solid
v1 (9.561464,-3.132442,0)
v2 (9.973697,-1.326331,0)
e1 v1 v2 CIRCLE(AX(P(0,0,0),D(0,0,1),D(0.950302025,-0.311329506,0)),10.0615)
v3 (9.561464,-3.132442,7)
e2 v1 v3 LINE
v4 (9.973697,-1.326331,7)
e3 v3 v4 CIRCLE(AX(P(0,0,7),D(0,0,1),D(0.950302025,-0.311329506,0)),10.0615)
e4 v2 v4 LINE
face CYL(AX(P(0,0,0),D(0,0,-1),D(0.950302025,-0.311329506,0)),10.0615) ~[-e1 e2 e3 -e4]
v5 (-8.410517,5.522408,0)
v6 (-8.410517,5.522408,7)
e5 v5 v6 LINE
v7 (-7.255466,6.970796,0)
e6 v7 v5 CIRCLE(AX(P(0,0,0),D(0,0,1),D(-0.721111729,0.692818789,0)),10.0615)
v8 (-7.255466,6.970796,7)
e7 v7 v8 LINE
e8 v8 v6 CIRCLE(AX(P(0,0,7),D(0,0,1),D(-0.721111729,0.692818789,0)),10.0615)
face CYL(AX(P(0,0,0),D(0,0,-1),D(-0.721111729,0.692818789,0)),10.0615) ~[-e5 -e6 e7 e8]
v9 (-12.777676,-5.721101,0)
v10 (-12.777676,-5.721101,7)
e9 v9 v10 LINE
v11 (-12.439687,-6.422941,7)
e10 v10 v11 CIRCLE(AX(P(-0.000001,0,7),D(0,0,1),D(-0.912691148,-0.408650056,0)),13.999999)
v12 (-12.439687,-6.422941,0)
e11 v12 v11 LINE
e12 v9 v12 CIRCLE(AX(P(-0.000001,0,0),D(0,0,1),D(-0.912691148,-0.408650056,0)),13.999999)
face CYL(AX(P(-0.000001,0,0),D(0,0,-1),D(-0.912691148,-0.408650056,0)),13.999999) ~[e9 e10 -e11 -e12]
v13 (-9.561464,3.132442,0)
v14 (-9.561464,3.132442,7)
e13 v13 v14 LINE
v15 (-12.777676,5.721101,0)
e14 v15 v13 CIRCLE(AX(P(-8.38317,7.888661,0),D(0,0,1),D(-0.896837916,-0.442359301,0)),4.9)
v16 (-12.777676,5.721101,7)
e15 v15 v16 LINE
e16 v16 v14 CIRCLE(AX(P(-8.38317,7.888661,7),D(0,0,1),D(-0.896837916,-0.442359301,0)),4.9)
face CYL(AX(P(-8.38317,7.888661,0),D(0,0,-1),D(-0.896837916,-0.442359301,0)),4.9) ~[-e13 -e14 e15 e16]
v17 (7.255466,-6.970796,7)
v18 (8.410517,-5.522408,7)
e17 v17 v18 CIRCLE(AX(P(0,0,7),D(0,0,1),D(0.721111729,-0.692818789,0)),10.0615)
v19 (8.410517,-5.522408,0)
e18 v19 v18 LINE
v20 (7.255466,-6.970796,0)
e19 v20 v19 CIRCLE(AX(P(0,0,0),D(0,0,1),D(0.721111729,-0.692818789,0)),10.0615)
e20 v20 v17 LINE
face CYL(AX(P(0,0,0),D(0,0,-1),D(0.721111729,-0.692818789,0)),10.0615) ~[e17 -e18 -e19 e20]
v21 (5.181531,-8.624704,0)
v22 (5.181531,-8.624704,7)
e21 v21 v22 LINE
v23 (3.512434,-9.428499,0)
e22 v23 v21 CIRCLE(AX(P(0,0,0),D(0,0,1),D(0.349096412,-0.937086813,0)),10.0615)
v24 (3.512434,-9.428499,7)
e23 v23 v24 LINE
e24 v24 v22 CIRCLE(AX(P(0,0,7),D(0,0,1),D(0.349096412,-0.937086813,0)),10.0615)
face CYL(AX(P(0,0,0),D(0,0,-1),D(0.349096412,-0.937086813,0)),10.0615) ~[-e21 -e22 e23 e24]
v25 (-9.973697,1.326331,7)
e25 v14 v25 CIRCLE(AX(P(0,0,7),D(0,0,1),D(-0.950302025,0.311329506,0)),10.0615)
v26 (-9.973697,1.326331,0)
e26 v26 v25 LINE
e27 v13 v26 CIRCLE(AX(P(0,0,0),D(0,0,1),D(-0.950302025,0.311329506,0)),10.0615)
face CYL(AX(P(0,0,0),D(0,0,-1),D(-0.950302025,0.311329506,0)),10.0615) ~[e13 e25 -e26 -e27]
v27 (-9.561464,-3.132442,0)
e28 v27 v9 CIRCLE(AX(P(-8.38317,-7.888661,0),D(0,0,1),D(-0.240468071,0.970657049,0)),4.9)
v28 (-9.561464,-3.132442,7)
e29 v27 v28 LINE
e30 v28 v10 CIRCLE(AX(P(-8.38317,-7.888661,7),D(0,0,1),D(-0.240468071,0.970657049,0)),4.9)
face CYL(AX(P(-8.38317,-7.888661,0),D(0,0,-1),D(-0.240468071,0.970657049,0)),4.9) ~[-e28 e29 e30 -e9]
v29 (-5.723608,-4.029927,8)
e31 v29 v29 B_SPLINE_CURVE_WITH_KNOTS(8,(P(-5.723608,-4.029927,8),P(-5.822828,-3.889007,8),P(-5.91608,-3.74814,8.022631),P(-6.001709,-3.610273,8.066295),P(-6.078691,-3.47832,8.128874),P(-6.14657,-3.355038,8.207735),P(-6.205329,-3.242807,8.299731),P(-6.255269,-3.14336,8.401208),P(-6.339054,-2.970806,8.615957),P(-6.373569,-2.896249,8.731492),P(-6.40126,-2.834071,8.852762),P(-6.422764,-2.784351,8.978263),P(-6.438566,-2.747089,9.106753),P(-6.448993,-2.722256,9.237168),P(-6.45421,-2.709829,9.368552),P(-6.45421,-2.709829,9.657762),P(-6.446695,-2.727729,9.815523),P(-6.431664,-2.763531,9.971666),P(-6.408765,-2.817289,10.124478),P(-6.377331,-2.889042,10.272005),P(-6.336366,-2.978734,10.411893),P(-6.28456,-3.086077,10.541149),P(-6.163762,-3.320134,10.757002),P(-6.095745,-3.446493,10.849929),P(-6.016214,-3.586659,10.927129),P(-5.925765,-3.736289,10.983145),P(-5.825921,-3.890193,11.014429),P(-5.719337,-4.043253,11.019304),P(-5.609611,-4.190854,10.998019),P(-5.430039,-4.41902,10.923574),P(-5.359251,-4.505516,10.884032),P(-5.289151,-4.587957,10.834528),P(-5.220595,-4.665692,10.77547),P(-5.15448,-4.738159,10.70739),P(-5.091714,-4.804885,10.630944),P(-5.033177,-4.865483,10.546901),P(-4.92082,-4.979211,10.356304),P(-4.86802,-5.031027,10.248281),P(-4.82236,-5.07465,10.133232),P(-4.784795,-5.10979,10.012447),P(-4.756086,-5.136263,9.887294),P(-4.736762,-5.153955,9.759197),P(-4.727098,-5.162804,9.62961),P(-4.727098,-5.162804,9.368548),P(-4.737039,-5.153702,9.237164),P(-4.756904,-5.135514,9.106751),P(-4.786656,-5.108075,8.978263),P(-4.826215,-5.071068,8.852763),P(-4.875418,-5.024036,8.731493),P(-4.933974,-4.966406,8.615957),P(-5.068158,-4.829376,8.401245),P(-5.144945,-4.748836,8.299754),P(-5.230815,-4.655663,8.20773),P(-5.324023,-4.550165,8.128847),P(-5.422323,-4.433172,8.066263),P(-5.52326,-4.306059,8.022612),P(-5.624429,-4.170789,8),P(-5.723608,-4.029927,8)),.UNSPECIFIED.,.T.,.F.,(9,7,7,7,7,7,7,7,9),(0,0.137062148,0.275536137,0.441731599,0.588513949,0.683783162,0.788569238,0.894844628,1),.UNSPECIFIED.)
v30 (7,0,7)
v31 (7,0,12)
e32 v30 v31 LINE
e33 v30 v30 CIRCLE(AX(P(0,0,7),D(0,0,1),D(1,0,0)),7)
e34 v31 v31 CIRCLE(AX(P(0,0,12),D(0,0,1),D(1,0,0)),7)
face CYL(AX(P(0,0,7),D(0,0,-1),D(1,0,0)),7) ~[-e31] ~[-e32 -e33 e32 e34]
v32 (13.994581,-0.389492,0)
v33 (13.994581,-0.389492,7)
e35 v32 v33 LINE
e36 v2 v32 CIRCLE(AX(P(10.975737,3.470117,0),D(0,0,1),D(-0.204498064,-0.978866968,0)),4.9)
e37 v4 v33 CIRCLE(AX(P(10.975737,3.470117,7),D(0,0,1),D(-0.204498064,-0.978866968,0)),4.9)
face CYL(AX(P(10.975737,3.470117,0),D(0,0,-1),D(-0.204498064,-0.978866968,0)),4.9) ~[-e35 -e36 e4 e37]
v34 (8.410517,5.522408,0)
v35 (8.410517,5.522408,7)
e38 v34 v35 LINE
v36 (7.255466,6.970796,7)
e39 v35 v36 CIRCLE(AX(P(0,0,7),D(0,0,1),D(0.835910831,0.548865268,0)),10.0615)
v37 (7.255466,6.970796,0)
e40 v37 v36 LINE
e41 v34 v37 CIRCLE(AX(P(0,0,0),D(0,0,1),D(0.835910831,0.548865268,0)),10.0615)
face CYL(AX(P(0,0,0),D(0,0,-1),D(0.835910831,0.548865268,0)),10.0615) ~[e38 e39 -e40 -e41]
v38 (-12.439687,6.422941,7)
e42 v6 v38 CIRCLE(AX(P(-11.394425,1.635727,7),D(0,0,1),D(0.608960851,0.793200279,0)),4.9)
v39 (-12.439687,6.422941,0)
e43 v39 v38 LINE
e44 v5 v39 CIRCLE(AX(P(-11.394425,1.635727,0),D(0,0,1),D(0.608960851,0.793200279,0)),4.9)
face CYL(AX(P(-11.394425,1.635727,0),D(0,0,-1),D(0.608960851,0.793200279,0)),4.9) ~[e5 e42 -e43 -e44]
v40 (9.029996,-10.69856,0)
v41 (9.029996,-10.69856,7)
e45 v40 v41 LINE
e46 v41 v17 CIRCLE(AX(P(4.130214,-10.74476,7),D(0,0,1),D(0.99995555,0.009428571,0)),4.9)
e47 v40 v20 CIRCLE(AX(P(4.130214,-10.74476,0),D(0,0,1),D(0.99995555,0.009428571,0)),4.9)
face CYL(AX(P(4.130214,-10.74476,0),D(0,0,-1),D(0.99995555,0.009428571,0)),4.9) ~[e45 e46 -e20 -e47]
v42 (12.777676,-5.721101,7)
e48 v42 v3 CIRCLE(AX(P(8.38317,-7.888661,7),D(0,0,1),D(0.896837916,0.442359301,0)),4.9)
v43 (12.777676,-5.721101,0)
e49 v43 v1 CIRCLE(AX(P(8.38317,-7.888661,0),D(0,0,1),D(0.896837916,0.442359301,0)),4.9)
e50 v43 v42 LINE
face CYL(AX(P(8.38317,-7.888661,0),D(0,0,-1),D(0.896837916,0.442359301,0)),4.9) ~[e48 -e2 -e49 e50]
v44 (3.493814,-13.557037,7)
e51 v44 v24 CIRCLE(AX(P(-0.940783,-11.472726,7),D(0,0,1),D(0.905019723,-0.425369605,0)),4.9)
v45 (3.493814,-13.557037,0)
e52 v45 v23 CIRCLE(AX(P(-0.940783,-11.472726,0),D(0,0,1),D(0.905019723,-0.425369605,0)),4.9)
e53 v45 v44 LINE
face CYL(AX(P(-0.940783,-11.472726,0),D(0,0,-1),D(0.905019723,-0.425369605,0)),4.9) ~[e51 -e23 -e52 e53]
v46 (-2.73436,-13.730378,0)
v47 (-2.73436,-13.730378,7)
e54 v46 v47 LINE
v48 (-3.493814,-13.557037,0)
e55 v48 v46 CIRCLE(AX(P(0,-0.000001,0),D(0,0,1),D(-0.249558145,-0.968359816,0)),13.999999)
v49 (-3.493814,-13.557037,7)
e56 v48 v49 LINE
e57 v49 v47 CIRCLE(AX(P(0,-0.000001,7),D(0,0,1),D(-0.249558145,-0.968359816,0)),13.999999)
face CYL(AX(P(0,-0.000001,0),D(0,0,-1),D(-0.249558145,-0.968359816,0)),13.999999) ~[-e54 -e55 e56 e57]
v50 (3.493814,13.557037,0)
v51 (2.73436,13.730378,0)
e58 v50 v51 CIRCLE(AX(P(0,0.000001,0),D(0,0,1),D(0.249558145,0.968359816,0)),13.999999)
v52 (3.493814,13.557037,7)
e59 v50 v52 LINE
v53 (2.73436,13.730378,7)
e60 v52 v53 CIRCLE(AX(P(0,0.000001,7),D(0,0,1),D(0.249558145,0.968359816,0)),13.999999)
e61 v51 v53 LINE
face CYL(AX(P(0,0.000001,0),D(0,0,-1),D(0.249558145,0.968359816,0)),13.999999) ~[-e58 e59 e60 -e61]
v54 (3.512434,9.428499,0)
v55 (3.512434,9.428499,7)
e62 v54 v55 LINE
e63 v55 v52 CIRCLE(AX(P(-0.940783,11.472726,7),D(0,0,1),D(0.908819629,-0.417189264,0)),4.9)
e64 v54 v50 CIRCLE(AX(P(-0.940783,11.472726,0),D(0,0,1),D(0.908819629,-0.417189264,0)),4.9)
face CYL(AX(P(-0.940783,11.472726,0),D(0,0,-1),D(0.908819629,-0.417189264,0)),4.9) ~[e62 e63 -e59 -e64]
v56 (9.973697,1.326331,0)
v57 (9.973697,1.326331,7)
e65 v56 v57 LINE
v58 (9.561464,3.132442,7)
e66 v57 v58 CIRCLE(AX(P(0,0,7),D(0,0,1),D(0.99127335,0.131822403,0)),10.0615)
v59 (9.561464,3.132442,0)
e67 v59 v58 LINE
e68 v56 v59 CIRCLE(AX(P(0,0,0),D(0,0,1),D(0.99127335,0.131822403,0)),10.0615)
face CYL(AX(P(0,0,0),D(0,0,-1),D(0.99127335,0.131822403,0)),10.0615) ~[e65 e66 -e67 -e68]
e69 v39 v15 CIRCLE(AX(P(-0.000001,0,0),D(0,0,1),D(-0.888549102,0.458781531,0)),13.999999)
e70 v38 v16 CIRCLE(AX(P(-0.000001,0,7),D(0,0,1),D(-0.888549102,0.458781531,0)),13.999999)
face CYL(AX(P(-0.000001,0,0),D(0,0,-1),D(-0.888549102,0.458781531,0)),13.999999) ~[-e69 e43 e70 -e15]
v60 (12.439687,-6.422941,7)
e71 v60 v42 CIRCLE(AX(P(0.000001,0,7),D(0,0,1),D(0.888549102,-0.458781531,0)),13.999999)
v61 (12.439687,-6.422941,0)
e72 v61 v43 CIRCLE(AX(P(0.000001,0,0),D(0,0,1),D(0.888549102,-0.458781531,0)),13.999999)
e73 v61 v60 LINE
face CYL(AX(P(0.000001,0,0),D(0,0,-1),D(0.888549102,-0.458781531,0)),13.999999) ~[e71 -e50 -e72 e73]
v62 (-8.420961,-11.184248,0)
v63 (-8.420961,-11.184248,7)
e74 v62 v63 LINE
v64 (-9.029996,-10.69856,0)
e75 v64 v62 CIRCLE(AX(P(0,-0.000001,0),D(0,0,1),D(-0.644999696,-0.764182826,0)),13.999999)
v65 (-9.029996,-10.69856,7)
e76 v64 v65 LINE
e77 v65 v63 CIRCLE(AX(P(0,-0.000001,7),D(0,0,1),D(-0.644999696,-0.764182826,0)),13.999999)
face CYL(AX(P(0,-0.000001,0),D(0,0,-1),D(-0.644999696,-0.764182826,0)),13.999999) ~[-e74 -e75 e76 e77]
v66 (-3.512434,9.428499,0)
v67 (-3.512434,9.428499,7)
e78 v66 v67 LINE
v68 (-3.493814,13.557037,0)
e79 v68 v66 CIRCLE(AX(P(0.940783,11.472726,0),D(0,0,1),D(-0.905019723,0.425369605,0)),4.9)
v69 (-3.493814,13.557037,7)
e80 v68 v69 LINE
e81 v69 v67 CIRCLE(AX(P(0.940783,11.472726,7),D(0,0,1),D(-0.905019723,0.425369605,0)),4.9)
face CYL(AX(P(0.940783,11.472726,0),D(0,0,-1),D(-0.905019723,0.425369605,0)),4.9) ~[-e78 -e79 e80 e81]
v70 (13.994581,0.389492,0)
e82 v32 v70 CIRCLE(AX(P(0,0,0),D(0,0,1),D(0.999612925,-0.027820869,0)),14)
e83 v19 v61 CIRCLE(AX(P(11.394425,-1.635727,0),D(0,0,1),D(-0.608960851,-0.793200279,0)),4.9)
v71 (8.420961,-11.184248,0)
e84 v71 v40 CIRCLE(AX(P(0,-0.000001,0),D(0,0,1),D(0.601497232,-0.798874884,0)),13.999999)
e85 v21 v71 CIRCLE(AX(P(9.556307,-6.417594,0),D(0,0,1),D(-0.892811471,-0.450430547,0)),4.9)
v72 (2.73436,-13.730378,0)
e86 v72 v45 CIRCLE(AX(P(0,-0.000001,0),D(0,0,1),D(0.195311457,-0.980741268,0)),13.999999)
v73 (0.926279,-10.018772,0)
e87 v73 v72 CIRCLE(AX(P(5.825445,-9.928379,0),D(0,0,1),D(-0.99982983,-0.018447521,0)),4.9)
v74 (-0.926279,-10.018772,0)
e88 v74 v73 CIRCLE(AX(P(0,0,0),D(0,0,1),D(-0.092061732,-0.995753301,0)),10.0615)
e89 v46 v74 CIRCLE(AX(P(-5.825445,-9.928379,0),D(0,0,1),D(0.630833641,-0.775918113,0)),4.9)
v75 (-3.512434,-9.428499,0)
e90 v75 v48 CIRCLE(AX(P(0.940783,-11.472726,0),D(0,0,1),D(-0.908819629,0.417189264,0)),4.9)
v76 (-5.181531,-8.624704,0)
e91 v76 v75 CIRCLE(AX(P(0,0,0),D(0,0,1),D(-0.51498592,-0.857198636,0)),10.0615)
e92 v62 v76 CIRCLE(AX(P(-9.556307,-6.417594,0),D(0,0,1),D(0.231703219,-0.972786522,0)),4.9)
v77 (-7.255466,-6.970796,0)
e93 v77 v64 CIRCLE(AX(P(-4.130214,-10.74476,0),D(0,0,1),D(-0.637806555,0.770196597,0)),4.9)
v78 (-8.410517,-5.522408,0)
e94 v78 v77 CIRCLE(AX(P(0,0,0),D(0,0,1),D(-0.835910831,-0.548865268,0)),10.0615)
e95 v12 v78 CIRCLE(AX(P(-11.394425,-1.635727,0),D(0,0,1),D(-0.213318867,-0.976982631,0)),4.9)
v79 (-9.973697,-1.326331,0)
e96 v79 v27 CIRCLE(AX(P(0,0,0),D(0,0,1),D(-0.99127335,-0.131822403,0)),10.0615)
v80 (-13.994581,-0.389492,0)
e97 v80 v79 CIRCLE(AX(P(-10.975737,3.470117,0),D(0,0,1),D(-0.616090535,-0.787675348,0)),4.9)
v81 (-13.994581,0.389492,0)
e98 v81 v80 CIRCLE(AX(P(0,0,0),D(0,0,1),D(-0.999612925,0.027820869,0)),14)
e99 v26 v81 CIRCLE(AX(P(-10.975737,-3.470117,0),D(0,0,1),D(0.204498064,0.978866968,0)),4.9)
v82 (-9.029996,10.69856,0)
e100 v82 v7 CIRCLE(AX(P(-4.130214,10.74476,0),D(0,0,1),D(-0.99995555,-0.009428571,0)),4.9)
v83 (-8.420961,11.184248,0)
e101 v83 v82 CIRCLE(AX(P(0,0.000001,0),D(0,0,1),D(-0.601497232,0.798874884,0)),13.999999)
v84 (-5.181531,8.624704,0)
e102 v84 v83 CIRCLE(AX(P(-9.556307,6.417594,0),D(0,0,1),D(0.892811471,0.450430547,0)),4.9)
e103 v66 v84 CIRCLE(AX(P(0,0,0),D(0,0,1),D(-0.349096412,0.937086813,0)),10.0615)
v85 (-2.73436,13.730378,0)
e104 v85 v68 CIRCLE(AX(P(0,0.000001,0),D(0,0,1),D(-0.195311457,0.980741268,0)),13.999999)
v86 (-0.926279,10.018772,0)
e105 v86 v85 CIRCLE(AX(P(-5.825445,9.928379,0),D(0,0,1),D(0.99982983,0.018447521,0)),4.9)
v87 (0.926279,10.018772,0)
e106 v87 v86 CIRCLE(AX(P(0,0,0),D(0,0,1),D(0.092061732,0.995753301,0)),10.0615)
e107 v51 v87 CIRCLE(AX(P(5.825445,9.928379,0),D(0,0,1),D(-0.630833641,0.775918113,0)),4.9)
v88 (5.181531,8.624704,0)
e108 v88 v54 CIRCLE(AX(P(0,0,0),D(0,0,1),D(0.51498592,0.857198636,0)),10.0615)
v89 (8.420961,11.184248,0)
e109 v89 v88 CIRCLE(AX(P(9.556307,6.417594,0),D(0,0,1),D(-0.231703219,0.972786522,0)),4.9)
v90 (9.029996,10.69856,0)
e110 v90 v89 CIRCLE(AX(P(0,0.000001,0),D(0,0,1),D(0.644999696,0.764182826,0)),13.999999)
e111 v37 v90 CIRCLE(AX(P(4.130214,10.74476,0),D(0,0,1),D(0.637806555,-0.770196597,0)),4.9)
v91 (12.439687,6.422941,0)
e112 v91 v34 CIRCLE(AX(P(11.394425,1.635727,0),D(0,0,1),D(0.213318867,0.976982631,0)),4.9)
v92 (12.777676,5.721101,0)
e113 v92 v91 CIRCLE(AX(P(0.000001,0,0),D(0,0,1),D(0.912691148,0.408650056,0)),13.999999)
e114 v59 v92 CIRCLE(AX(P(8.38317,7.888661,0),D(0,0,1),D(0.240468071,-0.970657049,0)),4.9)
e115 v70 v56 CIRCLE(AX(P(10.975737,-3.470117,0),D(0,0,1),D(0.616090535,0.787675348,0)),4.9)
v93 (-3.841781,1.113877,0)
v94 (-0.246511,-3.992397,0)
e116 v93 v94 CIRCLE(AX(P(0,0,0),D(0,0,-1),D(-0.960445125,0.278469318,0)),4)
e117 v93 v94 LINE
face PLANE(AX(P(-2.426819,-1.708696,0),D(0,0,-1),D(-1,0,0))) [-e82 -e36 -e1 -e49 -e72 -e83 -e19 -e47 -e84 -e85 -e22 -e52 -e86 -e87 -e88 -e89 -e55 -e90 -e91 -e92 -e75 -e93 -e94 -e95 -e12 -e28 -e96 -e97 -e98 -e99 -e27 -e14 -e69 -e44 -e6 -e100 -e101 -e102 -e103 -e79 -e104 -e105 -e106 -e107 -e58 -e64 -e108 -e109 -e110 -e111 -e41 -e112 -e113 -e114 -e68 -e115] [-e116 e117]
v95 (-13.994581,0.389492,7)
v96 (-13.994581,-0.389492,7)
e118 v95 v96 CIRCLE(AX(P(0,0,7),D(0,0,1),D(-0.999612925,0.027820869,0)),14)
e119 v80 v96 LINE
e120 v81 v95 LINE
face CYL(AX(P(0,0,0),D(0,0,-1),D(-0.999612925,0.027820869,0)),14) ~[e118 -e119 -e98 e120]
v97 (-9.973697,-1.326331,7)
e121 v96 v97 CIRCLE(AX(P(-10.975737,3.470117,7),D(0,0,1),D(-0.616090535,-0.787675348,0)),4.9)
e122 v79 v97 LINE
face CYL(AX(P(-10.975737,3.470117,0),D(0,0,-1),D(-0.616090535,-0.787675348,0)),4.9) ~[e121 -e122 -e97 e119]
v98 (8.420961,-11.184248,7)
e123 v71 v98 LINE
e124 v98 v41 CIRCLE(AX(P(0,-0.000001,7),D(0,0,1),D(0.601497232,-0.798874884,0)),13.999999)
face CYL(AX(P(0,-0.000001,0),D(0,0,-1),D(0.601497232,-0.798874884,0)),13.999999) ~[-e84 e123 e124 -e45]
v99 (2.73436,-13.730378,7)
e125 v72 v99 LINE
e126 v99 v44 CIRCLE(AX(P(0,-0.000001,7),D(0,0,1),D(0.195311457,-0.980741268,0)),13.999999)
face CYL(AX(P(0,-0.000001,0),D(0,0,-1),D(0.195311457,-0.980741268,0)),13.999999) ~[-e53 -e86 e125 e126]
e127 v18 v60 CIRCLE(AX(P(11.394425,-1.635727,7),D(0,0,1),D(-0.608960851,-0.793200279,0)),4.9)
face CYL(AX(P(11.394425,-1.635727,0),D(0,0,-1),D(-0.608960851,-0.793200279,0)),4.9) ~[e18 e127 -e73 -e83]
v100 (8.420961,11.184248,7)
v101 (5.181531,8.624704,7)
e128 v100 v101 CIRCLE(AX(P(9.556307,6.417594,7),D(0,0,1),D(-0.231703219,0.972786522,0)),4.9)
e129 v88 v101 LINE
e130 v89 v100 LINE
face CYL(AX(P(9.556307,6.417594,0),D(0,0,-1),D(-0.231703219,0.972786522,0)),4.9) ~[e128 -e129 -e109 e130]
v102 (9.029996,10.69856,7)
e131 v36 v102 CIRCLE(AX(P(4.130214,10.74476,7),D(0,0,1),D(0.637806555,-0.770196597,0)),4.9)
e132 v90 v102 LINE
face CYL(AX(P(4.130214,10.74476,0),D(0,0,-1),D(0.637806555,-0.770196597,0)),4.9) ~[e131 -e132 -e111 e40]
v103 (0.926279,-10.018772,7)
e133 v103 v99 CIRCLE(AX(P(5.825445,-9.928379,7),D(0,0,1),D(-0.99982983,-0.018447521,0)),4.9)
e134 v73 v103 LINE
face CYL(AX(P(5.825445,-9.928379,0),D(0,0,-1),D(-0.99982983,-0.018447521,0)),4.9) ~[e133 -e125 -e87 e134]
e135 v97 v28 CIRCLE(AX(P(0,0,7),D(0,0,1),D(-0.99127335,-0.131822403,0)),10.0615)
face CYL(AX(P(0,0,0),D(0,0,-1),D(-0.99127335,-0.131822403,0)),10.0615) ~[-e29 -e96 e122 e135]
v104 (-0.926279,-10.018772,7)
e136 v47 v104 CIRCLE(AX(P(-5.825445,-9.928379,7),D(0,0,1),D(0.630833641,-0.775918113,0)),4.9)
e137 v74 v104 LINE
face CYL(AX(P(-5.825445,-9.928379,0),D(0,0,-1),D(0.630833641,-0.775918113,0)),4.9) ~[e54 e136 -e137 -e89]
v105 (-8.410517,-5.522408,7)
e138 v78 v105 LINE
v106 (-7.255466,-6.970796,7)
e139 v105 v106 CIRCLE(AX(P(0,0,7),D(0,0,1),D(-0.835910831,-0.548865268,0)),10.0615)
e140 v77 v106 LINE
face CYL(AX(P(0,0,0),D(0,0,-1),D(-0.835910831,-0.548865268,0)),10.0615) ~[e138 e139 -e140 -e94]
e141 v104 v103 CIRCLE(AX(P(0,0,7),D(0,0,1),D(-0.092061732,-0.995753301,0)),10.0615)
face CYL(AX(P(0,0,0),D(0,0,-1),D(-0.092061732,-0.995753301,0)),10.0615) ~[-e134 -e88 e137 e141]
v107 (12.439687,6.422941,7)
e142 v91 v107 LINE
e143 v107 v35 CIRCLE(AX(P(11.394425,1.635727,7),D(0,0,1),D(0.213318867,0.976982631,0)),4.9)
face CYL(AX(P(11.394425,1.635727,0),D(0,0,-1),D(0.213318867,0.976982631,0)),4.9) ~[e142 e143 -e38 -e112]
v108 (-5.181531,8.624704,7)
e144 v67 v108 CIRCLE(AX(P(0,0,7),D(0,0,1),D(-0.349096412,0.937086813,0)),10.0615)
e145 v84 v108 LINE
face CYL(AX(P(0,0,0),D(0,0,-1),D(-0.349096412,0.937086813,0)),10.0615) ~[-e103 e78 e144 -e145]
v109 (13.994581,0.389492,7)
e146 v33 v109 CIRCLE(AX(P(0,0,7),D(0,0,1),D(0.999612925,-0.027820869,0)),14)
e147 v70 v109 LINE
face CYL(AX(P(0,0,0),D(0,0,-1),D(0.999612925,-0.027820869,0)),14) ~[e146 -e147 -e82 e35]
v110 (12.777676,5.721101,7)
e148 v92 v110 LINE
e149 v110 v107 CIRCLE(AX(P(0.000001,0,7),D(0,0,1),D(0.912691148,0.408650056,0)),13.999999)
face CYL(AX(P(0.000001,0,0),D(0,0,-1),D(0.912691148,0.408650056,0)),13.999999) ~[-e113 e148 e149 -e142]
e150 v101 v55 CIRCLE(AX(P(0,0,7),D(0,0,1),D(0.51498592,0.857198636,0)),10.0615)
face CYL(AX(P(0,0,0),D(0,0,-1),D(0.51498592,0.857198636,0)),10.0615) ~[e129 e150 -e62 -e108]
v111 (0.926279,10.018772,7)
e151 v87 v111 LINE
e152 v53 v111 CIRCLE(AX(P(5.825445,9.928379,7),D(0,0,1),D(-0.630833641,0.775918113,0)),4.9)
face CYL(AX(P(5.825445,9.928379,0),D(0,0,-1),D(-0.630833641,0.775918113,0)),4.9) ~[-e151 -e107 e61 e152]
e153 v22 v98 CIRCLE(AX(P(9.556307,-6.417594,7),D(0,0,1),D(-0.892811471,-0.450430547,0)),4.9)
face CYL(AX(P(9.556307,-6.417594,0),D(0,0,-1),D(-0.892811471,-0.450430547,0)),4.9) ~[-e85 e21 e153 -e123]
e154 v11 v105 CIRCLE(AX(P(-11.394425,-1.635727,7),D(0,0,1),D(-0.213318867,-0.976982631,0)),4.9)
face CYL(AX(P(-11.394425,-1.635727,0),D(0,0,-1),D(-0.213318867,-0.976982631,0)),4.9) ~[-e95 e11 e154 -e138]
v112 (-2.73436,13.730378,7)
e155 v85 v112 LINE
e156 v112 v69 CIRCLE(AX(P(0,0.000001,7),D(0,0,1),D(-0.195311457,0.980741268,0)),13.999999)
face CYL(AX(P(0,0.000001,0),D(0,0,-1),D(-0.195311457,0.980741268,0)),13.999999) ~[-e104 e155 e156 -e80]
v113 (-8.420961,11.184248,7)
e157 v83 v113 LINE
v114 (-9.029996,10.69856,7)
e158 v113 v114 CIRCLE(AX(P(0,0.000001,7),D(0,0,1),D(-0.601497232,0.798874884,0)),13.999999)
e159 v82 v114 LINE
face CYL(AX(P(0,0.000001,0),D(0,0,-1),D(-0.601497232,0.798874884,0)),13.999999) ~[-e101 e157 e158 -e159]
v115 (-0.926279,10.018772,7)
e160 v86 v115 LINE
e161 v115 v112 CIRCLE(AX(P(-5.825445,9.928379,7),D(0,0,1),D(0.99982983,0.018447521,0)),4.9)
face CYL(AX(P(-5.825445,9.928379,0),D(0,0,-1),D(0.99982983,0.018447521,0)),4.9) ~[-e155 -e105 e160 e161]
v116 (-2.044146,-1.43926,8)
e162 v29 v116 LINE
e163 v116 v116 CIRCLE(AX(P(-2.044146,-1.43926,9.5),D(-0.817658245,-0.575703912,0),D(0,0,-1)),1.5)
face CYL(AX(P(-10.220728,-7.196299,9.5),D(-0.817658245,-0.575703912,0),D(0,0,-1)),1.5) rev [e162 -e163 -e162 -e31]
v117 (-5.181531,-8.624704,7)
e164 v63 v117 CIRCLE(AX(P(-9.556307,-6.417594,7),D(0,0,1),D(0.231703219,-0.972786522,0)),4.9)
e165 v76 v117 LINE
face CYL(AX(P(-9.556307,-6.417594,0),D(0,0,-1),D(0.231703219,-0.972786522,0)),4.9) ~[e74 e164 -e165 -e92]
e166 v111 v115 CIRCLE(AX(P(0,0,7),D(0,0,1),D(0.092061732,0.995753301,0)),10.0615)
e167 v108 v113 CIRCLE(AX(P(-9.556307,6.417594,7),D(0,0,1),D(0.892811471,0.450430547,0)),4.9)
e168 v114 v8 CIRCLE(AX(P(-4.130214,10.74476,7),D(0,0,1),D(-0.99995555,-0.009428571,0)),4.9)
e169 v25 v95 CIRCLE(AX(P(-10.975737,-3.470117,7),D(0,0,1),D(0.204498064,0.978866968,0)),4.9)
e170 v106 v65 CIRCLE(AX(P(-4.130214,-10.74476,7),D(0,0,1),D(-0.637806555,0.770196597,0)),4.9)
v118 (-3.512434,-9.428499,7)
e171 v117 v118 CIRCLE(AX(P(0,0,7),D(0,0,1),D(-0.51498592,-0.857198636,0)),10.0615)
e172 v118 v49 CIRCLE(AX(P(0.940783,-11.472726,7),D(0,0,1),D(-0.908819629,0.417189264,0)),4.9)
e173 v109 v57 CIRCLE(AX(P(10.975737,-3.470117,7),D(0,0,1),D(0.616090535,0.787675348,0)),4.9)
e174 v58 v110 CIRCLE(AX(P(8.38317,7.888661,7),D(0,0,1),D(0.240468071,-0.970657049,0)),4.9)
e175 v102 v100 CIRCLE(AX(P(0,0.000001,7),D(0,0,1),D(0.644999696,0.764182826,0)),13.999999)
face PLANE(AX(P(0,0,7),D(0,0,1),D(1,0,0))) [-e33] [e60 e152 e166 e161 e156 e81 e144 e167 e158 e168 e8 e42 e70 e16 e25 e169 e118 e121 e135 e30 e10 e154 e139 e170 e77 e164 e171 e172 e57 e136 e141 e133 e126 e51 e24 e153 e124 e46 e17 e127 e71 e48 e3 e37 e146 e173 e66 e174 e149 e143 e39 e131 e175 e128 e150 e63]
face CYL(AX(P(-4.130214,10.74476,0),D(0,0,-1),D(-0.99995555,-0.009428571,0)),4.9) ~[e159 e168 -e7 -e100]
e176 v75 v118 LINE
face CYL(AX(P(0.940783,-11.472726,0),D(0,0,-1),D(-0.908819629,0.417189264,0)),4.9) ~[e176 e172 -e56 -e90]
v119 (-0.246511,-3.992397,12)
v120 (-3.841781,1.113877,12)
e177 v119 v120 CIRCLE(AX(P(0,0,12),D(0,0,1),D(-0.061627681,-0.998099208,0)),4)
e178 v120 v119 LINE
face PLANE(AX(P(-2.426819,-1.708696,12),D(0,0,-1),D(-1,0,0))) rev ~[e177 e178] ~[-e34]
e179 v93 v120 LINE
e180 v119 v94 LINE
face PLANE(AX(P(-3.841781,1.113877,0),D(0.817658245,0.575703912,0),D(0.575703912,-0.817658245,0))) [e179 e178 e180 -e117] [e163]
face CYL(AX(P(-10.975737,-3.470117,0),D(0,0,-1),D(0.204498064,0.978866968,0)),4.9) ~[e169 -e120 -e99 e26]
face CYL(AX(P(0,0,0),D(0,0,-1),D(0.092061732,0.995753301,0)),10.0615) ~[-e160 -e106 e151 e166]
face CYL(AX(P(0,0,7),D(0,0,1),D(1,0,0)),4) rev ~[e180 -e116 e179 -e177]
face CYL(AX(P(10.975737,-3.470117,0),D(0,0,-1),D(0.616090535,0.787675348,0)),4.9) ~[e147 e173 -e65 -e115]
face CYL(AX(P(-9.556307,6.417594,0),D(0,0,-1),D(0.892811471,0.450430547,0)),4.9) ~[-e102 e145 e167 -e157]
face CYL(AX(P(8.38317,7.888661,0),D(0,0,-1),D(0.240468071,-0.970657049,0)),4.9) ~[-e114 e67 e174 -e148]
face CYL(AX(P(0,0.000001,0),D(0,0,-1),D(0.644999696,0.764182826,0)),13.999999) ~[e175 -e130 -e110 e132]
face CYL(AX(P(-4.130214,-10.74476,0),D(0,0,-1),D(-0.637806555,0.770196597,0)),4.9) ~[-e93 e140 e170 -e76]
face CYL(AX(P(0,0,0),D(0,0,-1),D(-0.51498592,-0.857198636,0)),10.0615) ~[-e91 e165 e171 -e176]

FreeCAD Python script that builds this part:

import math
import FreeCAD as App
import Part
import Sketcher
from FreeCAD import Vector
Q = App.Units.Quantity

doc = App.newDocument("Part")
body = doc.addObject("PartDesign::Body", "Body")

sketch1 = body.newObject("Sketcher::SketchObject", "Sketch")
sketch1.AttachmentSupport = (doc.getObject("XY_Plane"), [""])
sketch1.MapMode = "FlatFace"
sketch1.addGeometry([
    Part.ArcOfCircle(Part.Circle(Vector(-11.394425, -1.635727, 0), Vector(0, 0, 1), 4.9), math.radians(-102.316918), math.radians(-52.485596)),
    Part.ArcOfCircle(Part.Circle(Vector(0, 0, 0), Vector(0, 0, 1), 10.0615), math.radians(-146.7108), math.radians(-136.146343)),
    Part.ArcOfCircle(Part.Circle(Vector(-4.130214, -10.74476, 0), Vector(0, 0, 1), 4.9), math.radians(129.628454), math.radians(179.459775)),
    Part.ArcOfCircle(Part.Circle(Vector(0, -0.000001, 0), Vector(0, 0, 1), 13.999999), math.radians(-130.165653), math.radians(-126.977204)),
    Part.ArcOfCircle(Part.Circle(Vector(-9.556307, -6.417594, 0), Vector(0, 0, 1), 4.9), math.radians(-76.602632), math.radians(-26.771311)),
    Part.ArcOfCircle(Part.Circle(Vector(0, 0, 0), Vector(0, 0, 1), 10.0615), math.radians(-120.996514), math.radians(-110.432058)),
    Part.ArcOfCircle(Part.Circle(Vector(0.940783, -11.472726, 0), Vector(0, 0, 1), 4.9), math.radians(155.342739), math.radians(205.17406)),
    Part.ArcOfCircle(Part.Circle(Vector(0, -0.000001, 0), Vector(0, 0, 1), 13.999999), math.radians(-104.451367), math.radians(-101.262919)),
    Part.ArcOfCircle(Part.Circle(Vector(-5.825445, -9.928379, 0), Vector(0, 0, 1), 4.9), math.radians(-50.888346), math.radians(-1.057025)),
    Part.ArcOfCircle(Part.Circle(Vector(0, 0, 0), Vector(0, 0, 1), 10.0615), math.radians(-95.282228), math.radians(-84.717772)),
    Part.ArcOfCircle(Part.Circle(Vector(5.825445, -9.928379, 0), Vector(0, 0, 1), 4.9), math.radians(-178.942975), math.radians(-129.111654)),
    Part.ArcOfCircle(Part.Circle(Vector(0, -0.000001, 0), Vector(0, 0, 1), 13.999999), math.radians(-78.737081), math.radians(-75.548633)),
    Part.ArcOfCircle(Part.Circle(Vector(-0.940783, -11.472726, 0), Vector(0, 0, 1), 4.9), math.radians(-25.17406), math.radians(24.657261)),
    Part.ArcOfCircle(Part.Circle(Vector(0, 0, 0), Vector(0, 0, 1), 10.0615), math.radians(-69.567942), math.radians(-59.003486)),
    Part.ArcOfCircle(Part.Circle(Vector(9.556307, -6.417594, 0), Vector(0, 0, 1), 4.9), math.radians(-153.228689), math.radians(-103.397368)),
    Part.ArcOfCircle(Part.Circle(Vector(0, -0.000001, 0), Vector(0, 0, 1), 13.999999), math.radians(-53.022796), math.radians(-49.834347)),
    Part.ArcOfCircle(Part.Circle(Vector(4.130214, -10.74476, 0), Vector(0, 0, 1), 4.9), math.radians(0.540225), math.radians(50.371546)),
    Part.ArcOfCircle(Part.Circle(Vector(0, 0, 0), Vector(0, 0, 1), 10.0615), math.radians(-43.853657), math.radians(-33.2892)),
    Part.ArcOfCircle(Part.Circle(Vector(11.394425, -1.635727, 0), Vector(0, 0, 1), 4.9), math.radians(-127.514404), math.radians(-77.683082)),
    Part.ArcOfCircle(Part.Circle(Vector(0.000001, 0, 0), Vector(0, 0, 1), 13.999999), math.radians(-27.30851), math.radians(-24.120062)),
    Part.ArcOfCircle(Part.Circle(Vector(8.38317, -7.888661, 0), Vector(0, 0, 1), 4.9), math.radians(26.254511), math.radians(76.085832)),
    Part.ArcOfCircle(Part.Circle(Vector(0, 0, 0), Vector(0, 0, 1), 10.0615), math.radians(-18.139371), math.radians(-7.574915)),
    Part.ArcOfCircle(Part.Circle(Vector(10.975737, 3.470117, 0), Vector(0, 0, 1), 4.9), math.radians(-101.800118), math.radians(-51.968797)),
    Part.ArcOfCircle(Part.Circle(Vector(0, 0, 0), Vector(0, 0, 1), 14), math.radians(-1.594224), math.radians(1.594224)),
    Part.ArcOfCircle(Part.Circle(Vector(10.975737, -3.470117, 0), Vector(0, 0, 1), 4.9), math.radians(51.968797), math.radians(101.800118)),
    Part.ArcOfCircle(Part.Circle(Vector(0, 0, 0), Vector(0, 0, 1), 10.0615), math.radians(7.574915), math.radians(18.139371)),
    Part.ArcOfCircle(Part.Circle(Vector(8.38317, 7.888661, 0), Vector(0, 0, 1), 4.9), math.radians(-76.085832), math.radians(-26.254511)),
    Part.ArcOfCircle(Part.Circle(Vector(0.000001, 0, 0), Vector(0, 0, 1), 13.999999), math.radians(24.120062), math.radians(27.30851)),
    Part.ArcOfCircle(Part.Circle(Vector(11.394425, 1.635727, 0), Vector(0, 0, 1), 4.9), math.radians(77.683082), math.radians(127.514404)),
    Part.ArcOfCircle(Part.Circle(Vector(0, 0, 0), Vector(0, 0, 1), 10.0615), math.radians(33.2892), math.radians(43.853657)),
    Part.ArcOfCircle(Part.Circle(Vector(4.130214, 10.74476, 0), Vector(0, 0, 1), 4.9), math.radians(-50.371546), math.radians(-0.540225)),
    Part.ArcOfCircle(Part.Circle(Vector(0, 0.000001, 0), Vector(0, 0, 1), 13.999999), math.radians(49.834347), math.radians(53.022796)),
    Part.ArcOfCircle(Part.Circle(Vector(9.556307, 6.417594, 0), Vector(0, 0, 1), 4.9), math.radians(103.397368), math.radians(153.228689)),
    Part.ArcOfCircle(Part.Circle(Vector(0, 0, 0), Vector(0, 0, 1), 10.0615), math.radians(59.003486), math.radians(69.567942)),
    Part.ArcOfCircle(Part.Circle(Vector(-0.940783, 11.472726, 0), Vector(0, 0, 1), 4.9), math.radians(-24.657261), math.radians(25.17406)),
    Part.ArcOfCircle(Part.Circle(Vector(0, 0.000001, 0), Vector(0, 0, 1), 13.999999), math.radians(75.548633), math.radians(78.737081)),
    Part.ArcOfCircle(Part.Circle(Vector(5.825445, 9.928379, 0), Vector(0, 0, 1), 4.9), math.radians(129.111654), math.radians(178.942975)),
    Part.ArcOfCircle(Part.Circle(Vector(0, 0, 0), Vector(0, 0, 1), 10.0615), math.radians(84.717772), math.radians(95.282228)),
    Part.ArcOfCircle(Part.Circle(Vector(-5.825445, 9.928379, 0), Vector(0, 0, 1), 4.9), math.radians(1.057025), math.radians(50.888346)),
    Part.ArcOfCircle(Part.Circle(Vector(0, 0.000001, 0), Vector(0, 0, 1), 13.999999), math.radians(101.262919), math.radians(104.451367)),
    Part.ArcOfCircle(Part.Circle(Vector(0.940783, 11.472726, 0), Vector(0, 0, 1), 4.9), math.radians(154.82594), math.radians(204.657261)),
    Part.ArcOfCircle(Part.Circle(Vector(0, 0, 0), Vector(0, 0, 1), 10.0615), math.radians(110.432058), math.radians(120.996514)),
    Part.ArcOfCircle(Part.Circle(Vector(-9.556307, 6.417594, 0), Vector(0, 0, 1), 4.9), math.radians(26.771311), math.radians(76.602632)),
    Part.ArcOfCircle(Part.Circle(Vector(0, 0.000001, 0), Vector(0, 0, 1), 13.999999), math.radians(126.977204), math.radians(130.165653)),
    Part.ArcOfCircle(Part.Circle(Vector(-4.130214, 10.74476, 0), Vector(0, 0, 1), 4.9), math.radians(-179.459775), math.radians(-129.628454)),
    Part.ArcOfCircle(Part.Circle(Vector(0, 0, 0), Vector(0, 0, 1), 10.0615), math.radians(136.146343), math.radians(146.7108)),
    Part.ArcOfCircle(Part.Circle(Vector(-11.394425, 1.635727, 0), Vector(0, 0, 1), 4.9), math.radians(52.485596), math.radians(102.316918)),
    Part.ArcOfCircle(Part.Circle(Vector(-0.000001, 0, 0), Vector(0, 0, 1), 13.999999), math.radians(152.69149), math.radians(155.879938)),
    Part.ArcOfCircle(Part.Circle(Vector(-8.38317, 7.888661, 0), Vector(0, 0, 1), 4.9), math.radians(-153.745489), math.radians(-103.914168)),
    Part.ArcOfCircle(Part.Circle(Vector(0, 0, 0), Vector(0, 0, 1), 10.0615), math.radians(161.860629), math.radians(172.425085)),
    Part.ArcOfCircle(Part.Circle(Vector(-10.975737, -3.470117, 0), Vector(0, 0, 1), 4.9), math.radians(78.199882), math.radians(128.031203)),
    Part.ArcOfCircle(Part.Circle(Vector(0, 0, 0), Vector(0, 0, 1), 14), math.radians(178.405776), math.radians(181.594224)),
    Part.ArcOfCircle(Part.Circle(Vector(-10.975737, 3.470117, 0), Vector(0, 0, 1), 4.9), math.radians(-128.031203), math.radians(-78.199882)),
    Part.ArcOfCircle(Part.Circle(Vector(0, 0, 0), Vector(0, 0, 1), 10.0615), math.radians(-172.425085), math.radians(-161.860629)),
    Part.ArcOfCircle(Part.Circle(Vector(-8.38317, -7.888661, 0), Vector(0, 0, 1), 4.9), math.radians(103.914168), math.radians(153.745489)),
    Part.ArcOfCircle(Part.Circle(Vector(-0.000001, 0, 0), Vector(0, 0, 1), 13.999999), math.radians(-155.879938), math.radians(-152.69149)),
], False)
sketch1.addConstraint([
    Sketcher.Constraint("Coincident", 0, 2, 1, 1),
    Sketcher.Constraint("Coincident", 1, 2, 2, 1),
    Sketcher.Constraint("Coincident", 2, 2, 3, 1),
    Sketcher.Constraint("Coincident", 3, 2, 4, 1),
    Sketcher.Constraint("Coincident", 4, 2, 5, 1),
    Sketcher.Constraint("Coincident", 5, 2, 6, 1),
    Sketcher.Constraint("Coincident", 6, 2, 7, 1),
    Sketcher.Constraint("Coincident", 7, 2, 8, 1),
    Sketcher.Constraint("Coincident", 8, 2, 9, 1),
    Sketcher.Constraint("Coincident", 9, 2, 10, 1),
    Sketcher.Constraint("Coincident", 10, 2, 11, 1),
    Sketcher.Constraint("Coincident", 11, 2, 12, 1),
    Sketcher.Constraint("Coincident", 12, 2, 13, 1),
    Sketcher.Constraint("Coincident", 13, 2, 14, 1),
    Sketcher.Constraint("Coincident", 14, 2, 15, 1),
    Sketcher.Constraint("Coincident", 15, 2, 16, 1),
    Sketcher.Constraint("Coincident", 16, 2, 17, 1),
    Sketcher.Constraint("Coincident", 17, 2, 18, 1),
    Sketcher.Constraint("Coincident", 18, 2, 19, 1),
    Sketcher.Constraint("Coincident", 19, 2, 20, 1),
    Sketcher.Constraint("Coincident", 20, 2, 21, 1),
    Sketcher.Constraint("Coincident", 21, 2, 22, 1),
    Sketcher.Constraint("Coincident", 22, 2, 23, 1),
    Sketcher.Constraint("Coincident", 23, 2, 24, 1),
    Sketcher.Constraint("Coincident", 24, 2, 25, 1),
    Sketcher.Constraint("Coincident", 25, 2, 26, 1),
    Sketcher.Constraint("Coincident", 26, 2, 27, 1),
    Sketcher.Constraint("Coincident", 27, 2, 28, 1),
    Sketcher.Constraint("Coincident", 28, 2, 29, 1),
    Sketcher.Constraint("Coincident", 29, 2, 30, 1),
    Sketcher.Constraint("Coincident", 30, 2, 31, 1),
    Sketcher.Constraint("Coincident", 31, 2, 32, 1),
    Sketcher.Constraint("Coincident", 32, 2, 33, 1),
    Sketcher.Constraint("Coincident", 33, 2, 34, 1),
    Sketcher.Constraint("Coincident", 34, 2, 35, 1),
    Sketcher.Constraint("Coincident", 35, 2, 36, 1),
    Sketcher.Constraint("Coincident", 36, 2, 37, 1),
    Sketcher.Constraint("Coincident", 37, 2, 38, 1),
    Sketcher.Constraint("Coincident", 38, 2, 39, 1),
    Sketcher.Constraint("Coincident", 39, 2, 40, 1),
    Sketcher.Constraint("Coincident", 40, 2, 41, 1),
    Sketcher.Constraint("Coincident", 41, 2, 42, 1),
    Sketcher.Constraint("Coincident", 42, 2, 43, 1),
    Sketcher.Constraint("Coincident", 43, 2, 44, 1),
    Sketcher.Constraint("Coincident", 44, 2, 45, 1),
    Sketcher.Constraint("Coincident", 45, 2, 46, 1),
    Sketcher.Constraint("Coincident", 46, 2, 47, 1),
    Sketcher.Constraint("Coincident", 47, 2, 48, 1),
    Sketcher.Constraint("Coincident", 48, 2, 49, 1),
    Sketcher.Constraint("Coincident", 49, 2, 50, 1),
    Sketcher.Constraint("Coincident", 50, 2, 51, 1),
    Sketcher.Constraint("Coincident", 51, 2, 52, 1),
    Sketcher.Constraint("Coincident", 52, 2, 53, 1),
    Sketcher.Constraint("Coincident", 53, 2, 54, 1),
    Sketcher.Constraint("Coincident", 54, 2, 55, 1),
    Sketcher.Constraint("Coincident", 55, 2, 0, 1),
    Sketcher.Constraint("Coincident", 1, 3, -1, 1),
    Sketcher.Constraint("Coincident", 3, 3, -1, 1),
    Sketcher.Constraint("Coincident", 5, 3, -1, 1),
    Sketcher.Constraint("Coincident", 7, 3, -1, 1),
    Sketcher.Constraint("Coincident", 9, 3, -1, 1),
    Sketcher.Constraint("Coincident", 11, 3, -1, 1),
    Sketcher.Constraint("Coincident", 13, 3, -1, 1),
    Sketcher.Constraint("Coincident", 15, 3, -1, 1),
    Sketcher.Constraint("Coincident", 17, 3, -1, 1),
    Sketcher.Constraint("Coincident", 19, 3, -1, 1),
    Sketcher.Constraint("Coincident", 21, 3, -1, 1),
    Sketcher.Constraint("Coincident", 23, 3, -1, 1),
    Sketcher.Constraint("Coincident", 25, 3, -1, 1),
    Sketcher.Constraint("Coincident", 27, 3, -1, 1),
    Sketcher.Constraint("Coincident", 29, 3, -1, 1),
    Sketcher.Constraint("Coincident", 31, 3, -1, 1),
    Sketcher.Constraint("Coincident", 33, 3, -1, 1),
    Sketcher.Constraint("Coincident", 35, 3, -1, 1),
    Sketcher.Constraint("Coincident", 37, 3, -1, 1),
    Sketcher.Constraint("Coincident", 39, 3, -1, 1),
    Sketcher.Constraint("Coincident", 41, 3, -1, 1),
    Sketcher.Constraint("Coincident", 43, 3, -1, 1),
    Sketcher.Constraint("Coincident", 45, 3, -1, 1),
    Sketcher.Constraint("Coincident", 47, 3, -1, 1),
    Sketcher.Constraint("Coincident", 49, 3, -1, 1),
    Sketcher.Constraint("Coincident", 51, 3, -1, 1),
    Sketcher.Constraint("Coincident", 53, 3, -1, 1),
    Sketcher.Constraint("Coincident", 55, 3, -1, 1),
    Sketcher.Constraint("Radius", 3, Q("13.999999 mm")),
    Sketcher.Constraint("Radius", 7, Q("13.999999 mm")),
    Sketcher.Constraint("Radius", 11, Q("13.999999 mm")),
    Sketcher.Constraint("Radius", 15, Q("13.999999 mm")),
    Sketcher.Constraint("Radius", 19, Q("13.999999 mm")),
    Sketcher.Constraint("Radius", 23, Q("14 mm")),
    Sketcher.Constraint("Radius", 27, Q("13.999999 mm")),
    Sketcher.Constraint("Radius", 31, Q("13.999999 mm")),
    Sketcher.Constraint("Radius", 35, Q("13.999999 mm")),
    Sketcher.Constraint("Radius", 39, Q("13.999999 mm")),
    Sketcher.Constraint("Radius", 43, Q("13.999999 mm")),
    Sketcher.Constraint("Radius", 47, Q("13.999999 mm")),
    Sketcher.Constraint("Radius", 51, Q("14 mm")),
    Sketcher.Constraint("Radius", 55, Q("13.999999 mm")),
    Sketcher.Constraint("Radius", 0, Q("4.9 mm")),
    Sketcher.Constraint("Radius", 2, Q("4.9 mm")),
    Sketcher.Constraint("Radius", 4, Q("4.9 mm")),
    Sketcher.Constraint("Radius", 6, Q("4.9 mm")),
    Sketcher.Constraint("Radius", 8, Q("4.9 mm")),
    Sketcher.Constraint("Radius", 10, Q("4.9 mm")),
    Sketcher.Constraint("Radius", 12, Q("4.9 mm")),
    Sketcher.Constraint("Radius", 14, Q("4.9 mm")),
    Sketcher.Constraint("Radius", 16, Q("4.9 mm")),
    Sketcher.Constraint("Radius", 18, Q("4.9 mm")),
    Sketcher.Constraint("Radius", 20, Q("4.9 mm")),
    Sketcher.Constraint("Radius", 22, Q("4.9 mm")),
    Sketcher.Constraint("Radius", 24, Q("4.9 mm")),
    Sketcher.Constraint("Radius", 26, Q("4.9 mm")),
    Sketcher.Constraint("Radius", 28, Q("4.9 mm")),
    Sketcher.Constraint("Radius", 30, Q("4.9 mm")),
    Sketcher.Constraint("Radius", 32, Q("4.9 mm")),
    Sketcher.Constraint("Radius", 34, Q("4.9 mm")),
    Sketcher.Constraint("Radius", 36, Q("4.9 mm")),
    Sketcher.Constraint("Radius", 38, Q("4.9 mm")),
    Sketcher.Constraint("Radius", 40, Q("4.9 mm")),
    Sketcher.Constraint("Radius", 42, Q("4.9 mm")),
    Sketcher.Constraint("Radius", 44, Q("4.9 mm")),
    Sketcher.Constraint("Radius", 46, Q("4.9 mm")),
    Sketcher.Constraint("Radius", 48, Q("4.9 mm")),
    Sketcher.Constraint("Radius", 50, Q("4.9 mm")),
    Sketcher.Constraint("Radius", 52, Q("4.9 mm")),
    Sketcher.Constraint("Radius", 54, Q("4.9 mm")),
    Sketcher.Constraint("Radius", 1, Q("10.0615 mm")),
    Sketcher.Constraint("Radius", 5, Q("10.0615 mm")),
    Sketcher.Constraint("Radius", 9, Q("10.0615 mm")),
    Sketcher.Constraint("Radius", 13, Q("10.0615 mm")),
    Sketcher.Constraint("Radius", 17, Q("10.0615 mm")),
    Sketcher.Constraint("Radius", 21, Q("10.0615 mm")),
    Sketcher.Constraint("Radius", 25, Q("10.0615 mm")),
    Sketcher.Constraint("Radius", 29, Q("10.0615 mm")),
    Sketcher.Constraint("Radius", 33, Q("10.0615 mm")),
    Sketcher.Constraint("Radius", 37, Q("10.0615 mm")),
    Sketcher.Constraint("Radius", 41, Q("10.0615 mm")),
    Sketcher.Constraint("Radius", 45, Q("10.0615 mm")),
    Sketcher.Constraint("Radius", 49, Q("10.0615 mm")),
    Sketcher.Constraint("Radius", 53, Q("10.0615 mm")),
    Sketcher.Constraint("DistanceY", 5, 2, -1, 1, Q("9.428499 mm")),
    Sketcher.Constraint("DistanceY", 12, 2, -1, 1, Q("9.428499 mm")),
    Sketcher.Constraint("DistanceY", 19, 2, -1, 1, Q("5.721101 mm")),
    Sketcher.Constraint("DistanceY", -1, 1, 26, 2, Q("5.721101 mm")),
    Sketcher.Constraint("DistanceY", -1, 1, 33, 2, Q("9.428499 mm")),
    Sketcher.Constraint("DistanceY", -1, 1, 40, 2, Q("9.428499 mm")),
    Sketcher.Constraint("DistanceY", -1, 1, 47, 2, Q("5.721101 mm")),
    Sketcher.Constraint("DistanceY", 54, 2, -1, 1, Q("5.721101 mm")),
    Sketcher.Constraint("DistanceY", 2, 3, -1, 1, Q("10.74476 mm")),
    Sketcher.Constraint("DistanceY", 8, 3, -1, 1, Q("9.928379 mm")),
    Sketcher.Constraint("DistanceY", 10, 3, -1, 1, Q("9.928379 mm")),
    Sketcher.Constraint("DistanceY", 16, 3, -1, 1, Q("10.74476 mm")),
    Sketcher.Constraint("DistanceX", -1, 1, 20, 3, Q("8.38317 mm")),
    Sketcher.Constraint("DistanceX", -1, 1, 26, 3, Q("8.38317 mm")),
    Sketcher.Constraint("DistanceY", -1, 1, 30, 3, Q("10.74476 mm")),
    Sketcher.Constraint("DistanceY", -1, 1, 36, 3, Q("9.928379 mm")),
    Sketcher.Constraint("DistanceY", -1, 1, 38, 3, Q("9.928379 mm")),
    Sketcher.Constraint("DistanceY", -1, 1, 44, 3, Q("10.74476 mm")),
    Sketcher.Constraint("DistanceX", 48, 3, -1, 1, Q("8.38317 mm")),
    Sketcher.Constraint("DistanceX", 54, 3, -1, 1, Q("8.38317 mm")),
    Sketcher.Constraint("DistanceY", 2, 2, -1, 1, Q("10.69856 mm")),
    Sketcher.Constraint("DistanceX", 3, 2, -1, 1, Q("8.420961 mm")),
    Sketcher.Constraint("DistanceX", 4, 2, -1, 1, Q("5.181531 mm")),
    Sketcher.Constraint("DistanceX", 7, 2, -1, 1, Q("2.73436 mm")),
    Sketcher.Constraint("DistanceX", -1, 1, 9, 2, Q("0.926279 mm")),
    Sketcher.Constraint("DistanceX", -1, 1, 13, 2, Q("5.181531 mm")),
    Sketcher.Constraint("DistanceX", -1, 1, 14, 2, Q("8.420961 mm")),
    Sketcher.Constraint("DistanceY", 15, 2, -1, 1, Q("10.69856 mm")),
    Sketcher.Constraint("DistanceY", 18, 2, -1, 1, Q("6.422941 mm")),
    Sketcher.Constraint("DistanceY", 21, 2, -1, 1, Q("1.326331 mm")),
    Sketcher.Constraint("DistanceX", -1, 1, 22, 2, Q("13.994581 mm")),
    Sketcher.Constraint("DistanceX", -1, 1, 23, 2, Q("13.994581 mm")),
    Sketcher.Constraint("DistanceY", -1, 1, 24, 2, Q("1.326331 mm")),
    Sketcher.Constraint("DistanceY", -1, 1, 27, 2, Q("6.422941 mm")),
    Sketcher.Constraint("DistanceY", -1, 1, 30, 2, Q("10.69856 mm")),
    Sketcher.Constraint("DistanceX", -1, 1, 31, 2, Q("8.420961 mm")),
    Sketcher.Constraint("DistanceX", -1, 1, 32, 2, Q("5.181531 mm")),
    Sketcher.Constraint("DistanceX", -1, 1, 35, 2, Q("2.73436 mm")),
    Sketcher.Constraint("DistanceX", 37, 2, -1, 1, Q("0.926279 mm")),
    Sketcher.Constraint("DistanceX", 41, 2, -1, 1, Q("5.181531 mm")),
    Sketcher.Constraint("DistanceX", 42, 2, -1, 1, Q("8.420961 mm")),
    Sketcher.Constraint("DistanceY", -1, 1, 43, 2, Q("10.69856 mm")),
    Sketcher.Constraint("DistanceY", -1, 1, 46, 2, Q("6.422941 mm")),
    Sketcher.Constraint("DistanceY", -1, 1, 49, 2, Q("1.326331 mm")),
    Sketcher.Constraint("DistanceX", 50, 2, -1, 1, Q("13.994581 mm")),
    Sketcher.Constraint("DistanceX", 51, 2, -1, 1, Q("13.994581 mm")),
    Sketcher.Constraint("DistanceY", 52, 2, -1, 1, Q("1.326331 mm")),
    Sketcher.Constraint("DistanceY", 55, 2, -1, 1, Q("6.422941 mm")),
    Sketcher.Constraint("DistanceX", 0, 3, -1, 1, Q("11.394425 mm")),
    Sketcher.Constraint("DistanceX", -1, 1, 6, 3, Q("0.940783 mm")),
    Sketcher.Constraint("DistanceX", 12, 3, -1, 1, Q("0.940783 mm")),
    Sketcher.Constraint("DistanceX", -1, 1, 18, 3, Q("11.394425 mm")),
    Sketcher.Constraint("DistanceX", -1, 1, 28, 3, Q("11.394425 mm")),
    Sketcher.Constraint("DistanceX", 34, 3, -1, 1, Q("0.940783 mm")),
    Sketcher.Constraint("DistanceX", -1, 1, 40, 3, Q("0.940783 mm")),
    Sketcher.Constraint("DistanceX", 46, 3, -1, 1, Q("11.394425 mm")),
])
pad1 = body.newObject("PartDesign::Pad", "Pad")
pad1.Profile = sketch1
pad1.Length = 7

sketch2 = body.newObject("Sketcher::SketchObject", "Sketch001")
sketch2.AttachmentSupport = (doc.getObject("XY_Plane"), [""])
sketch2.MapMode = "FlatFace"
sketch2.AttachmentOffset = App.Placement(Vector(0, 0, 7), App.Rotation())
sketch2.addGeometry([
    Part.Circle(Vector(0, 0, 0), Vector(0, 0, 1), 7),
    Part.Circle(Vector(0, 0, 0), Vector(0, 0, 1), 4),
], False)
sketch2.addConstraint([
    Sketcher.Constraint("Coincident", 0, 3, -1, 1),
    Sketcher.Constraint("Coincident", 1, 3, -1, 1),
    Sketcher.Constraint("Diameter", 0, Q("14 mm")),
    Sketcher.Constraint("Diameter", 1, Q("8 mm")),
])
pad2 = body.newObject("PartDesign::Pad", "Pad001")
pad2.Profile = sketch2
pad2.Length = 5

sketch3 = body.newObject("Sketcher::SketchObject", "Sketch002")
sketch3.AttachmentSupport = (doc.getObject("XY_Plane"), [""])
sketch3.MapMode = "FlatFace"
sketch3.AttachmentOffset = App.Placement(Vector(0, 0, 7), App.Rotation())
sketch3.addGeometry(Part.Circle(Vector(0, 0, 0), Vector(0, 0, 1), 4), False)
sketch3.addConstraint([
    Sketcher.Constraint("Coincident", 0, 3, -1, 1),
    Sketcher.Constraint("Diameter", 0, Q("8 mm")),
])
pocket1 = body.newObject("PartDesign::Pocket", "Pocket")
pocket1.Profile = sketch3
pocket1.Length = 15

sketch4 = body.newObject("Sketcher::SketchObject", "Sketch003")
sketch4.AttachmentSupport = (doc.getObject("XY_Plane"), [""])
sketch4.MapMode = "FlatFace"
sketch4.addGeometry([
    Part.LineSegment(Vector(-3.8, 1.1, 0), Vector(-0.2, -4, 0)),
    Part.ArcOfCircle(Part.Circle(Vector(0, 0, 0), Vector(0, 0, 1), 4), math.radians(164), math.radians(266)),
], False)
sketch4.addConstraint([
    Sketcher.Constraint("Coincident", 0, 1, 1, 1),
    Sketcher.Constraint("Coincident", 1, 2, 0, 2),
    Sketcher.Constraint("Coincident", 1, 3, -1, 1),
    Sketcher.Constraint("Radius", 1, Q("4 mm")),
    Sketcher.Constraint("DistanceX", 0, 1, -1, 1, Q("3.841781 mm")),
    Sketcher.Constraint("DistanceX", 1, 2, -1, 1, Q("0.246511 mm")),
])
pad3 = body.newObject("PartDesign::Pad", "Pad002")
pad3.Profile = sketch4
pad3.Length = 12

sketch5 = body.newObject("Sketcher::SketchObject", "Sketch004")
sketch5.Placement = App.Placement(Vector(-10.220728, -7.196299, 0), App.Rotation(Vector(0, 0, -1), Vector(-0.575703912, 0.817658245, 0), Vector(0.817658245, 0.575703912, 0), "ZXY"))
sketch5.addGeometry(Part.Circle(Vector(-9.5, 0, 0), Vector(0, 0, 1), 1.5), False)
sketch5.addConstraint([
    Sketcher.Constraint("PointOnObject", 0, 3, -1),
    Sketcher.Constraint("Diameter", 0, Q("3 mm")),
    Sketcher.Constraint("DistanceX", 0, 3, -1, 1, Q("9.5 mm")),
])
pocket2 = body.newObject("PartDesign::Pocket", "Pocket001")
pocket2.Profile = sketch5
pocket2.Length = 12
pocket2.Reversed = True

doc.recompute()
